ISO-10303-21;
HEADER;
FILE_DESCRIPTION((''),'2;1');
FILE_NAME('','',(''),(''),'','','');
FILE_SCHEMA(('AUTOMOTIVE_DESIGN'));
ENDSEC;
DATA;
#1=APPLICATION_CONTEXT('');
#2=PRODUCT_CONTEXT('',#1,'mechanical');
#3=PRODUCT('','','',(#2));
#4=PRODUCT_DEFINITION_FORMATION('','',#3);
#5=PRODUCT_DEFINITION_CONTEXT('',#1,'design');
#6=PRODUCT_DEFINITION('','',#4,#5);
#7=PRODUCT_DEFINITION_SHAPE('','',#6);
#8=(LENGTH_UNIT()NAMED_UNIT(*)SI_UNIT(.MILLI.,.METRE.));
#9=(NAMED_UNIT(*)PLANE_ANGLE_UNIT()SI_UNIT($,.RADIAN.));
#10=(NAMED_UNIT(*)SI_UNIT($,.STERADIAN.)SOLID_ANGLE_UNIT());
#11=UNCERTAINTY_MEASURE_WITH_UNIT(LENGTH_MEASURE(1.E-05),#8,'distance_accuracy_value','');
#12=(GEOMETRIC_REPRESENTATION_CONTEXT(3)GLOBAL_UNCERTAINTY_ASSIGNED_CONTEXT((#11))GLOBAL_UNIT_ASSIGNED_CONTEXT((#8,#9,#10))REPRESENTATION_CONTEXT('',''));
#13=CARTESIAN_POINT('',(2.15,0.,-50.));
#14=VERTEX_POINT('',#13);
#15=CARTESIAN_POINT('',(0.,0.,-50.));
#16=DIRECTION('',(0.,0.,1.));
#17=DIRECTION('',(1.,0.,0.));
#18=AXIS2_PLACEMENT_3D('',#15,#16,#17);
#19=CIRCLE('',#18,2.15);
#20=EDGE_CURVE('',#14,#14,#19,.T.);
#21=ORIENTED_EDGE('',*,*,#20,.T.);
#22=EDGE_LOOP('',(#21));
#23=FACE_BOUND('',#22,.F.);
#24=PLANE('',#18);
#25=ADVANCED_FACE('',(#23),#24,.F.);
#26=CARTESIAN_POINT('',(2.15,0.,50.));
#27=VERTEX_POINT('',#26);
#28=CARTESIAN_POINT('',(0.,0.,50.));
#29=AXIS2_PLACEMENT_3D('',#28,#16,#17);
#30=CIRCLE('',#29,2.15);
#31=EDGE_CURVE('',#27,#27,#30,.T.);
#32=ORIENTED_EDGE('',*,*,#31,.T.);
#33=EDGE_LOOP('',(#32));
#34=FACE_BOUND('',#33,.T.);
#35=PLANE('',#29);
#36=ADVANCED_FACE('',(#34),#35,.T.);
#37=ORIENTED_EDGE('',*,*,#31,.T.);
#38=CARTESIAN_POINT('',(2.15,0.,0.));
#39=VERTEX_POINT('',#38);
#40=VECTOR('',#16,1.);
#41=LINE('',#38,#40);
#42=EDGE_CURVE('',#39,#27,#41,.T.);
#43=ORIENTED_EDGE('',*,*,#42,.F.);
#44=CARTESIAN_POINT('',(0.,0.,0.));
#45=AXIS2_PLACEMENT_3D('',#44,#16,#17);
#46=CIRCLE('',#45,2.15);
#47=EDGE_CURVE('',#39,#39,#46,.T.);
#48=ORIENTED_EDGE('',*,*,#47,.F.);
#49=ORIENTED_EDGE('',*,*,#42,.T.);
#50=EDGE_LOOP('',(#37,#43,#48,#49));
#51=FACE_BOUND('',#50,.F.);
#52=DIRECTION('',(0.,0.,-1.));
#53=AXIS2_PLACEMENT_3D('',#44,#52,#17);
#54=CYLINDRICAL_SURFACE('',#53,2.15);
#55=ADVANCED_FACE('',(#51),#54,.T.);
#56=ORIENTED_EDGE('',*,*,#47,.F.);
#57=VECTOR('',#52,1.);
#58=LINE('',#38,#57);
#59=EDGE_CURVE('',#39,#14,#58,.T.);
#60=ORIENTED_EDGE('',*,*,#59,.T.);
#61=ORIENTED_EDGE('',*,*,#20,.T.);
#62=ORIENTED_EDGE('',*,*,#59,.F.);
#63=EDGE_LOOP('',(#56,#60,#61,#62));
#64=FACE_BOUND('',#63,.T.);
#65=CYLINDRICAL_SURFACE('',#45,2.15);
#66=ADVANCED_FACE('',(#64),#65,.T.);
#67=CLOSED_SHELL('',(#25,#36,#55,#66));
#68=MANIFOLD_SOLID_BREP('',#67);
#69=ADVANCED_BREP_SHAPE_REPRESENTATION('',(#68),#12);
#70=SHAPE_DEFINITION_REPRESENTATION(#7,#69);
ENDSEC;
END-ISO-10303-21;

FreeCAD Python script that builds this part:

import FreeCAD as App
import Part
import Sketcher
Q = App.Units.Quantity

doc = App.newDocument("Part")
params = doc.addObject("Spreadsheet::Sheet", "Params")
for row, (alias, value) in enumerate([
    ("sketch1_diameter", "4.3 mm"),
    ("pad1_length", "100 mm"),
], start=1):
    params.set(f"A{row}", alias)
    params.set(f"B{row}", "=" + value)
    params.setAlias(f"B{row}", alias)

body = doc.addObject("PartDesign::Body", "Body")

sketch1 = doc.addObject("Sketcher::SketchObject", "Sketch")
body.addObject(sketch1)
sketch1.AttachmentSupport = (doc.XY_Plane, [""])
sketch1.MapMode = "FlatFace"
sketch1.addGeometry(Part.Circle(App.Vector(0, 0, 0), App.Vector(0, 0, 1), 2.1), False)
sketch1.addConstraint(Sketcher.Constraint("Coincident", 0, 3, -1, 1))
sketch1.addConstraint(Sketcher.Constraint("Diameter", 0, Q("4.3 mm")))
sketch1.setExpression("Constraints[1]", "Params.sketch1_diameter")
pad1 = doc.addObject("PartDesign::Pad", "Pad")
body.addObject(pad1)
pad1.Profile = sketch1
pad1.setExpression("Length", "Params.pad1_length")
pad1.Midplane = True

doc.recompute()
